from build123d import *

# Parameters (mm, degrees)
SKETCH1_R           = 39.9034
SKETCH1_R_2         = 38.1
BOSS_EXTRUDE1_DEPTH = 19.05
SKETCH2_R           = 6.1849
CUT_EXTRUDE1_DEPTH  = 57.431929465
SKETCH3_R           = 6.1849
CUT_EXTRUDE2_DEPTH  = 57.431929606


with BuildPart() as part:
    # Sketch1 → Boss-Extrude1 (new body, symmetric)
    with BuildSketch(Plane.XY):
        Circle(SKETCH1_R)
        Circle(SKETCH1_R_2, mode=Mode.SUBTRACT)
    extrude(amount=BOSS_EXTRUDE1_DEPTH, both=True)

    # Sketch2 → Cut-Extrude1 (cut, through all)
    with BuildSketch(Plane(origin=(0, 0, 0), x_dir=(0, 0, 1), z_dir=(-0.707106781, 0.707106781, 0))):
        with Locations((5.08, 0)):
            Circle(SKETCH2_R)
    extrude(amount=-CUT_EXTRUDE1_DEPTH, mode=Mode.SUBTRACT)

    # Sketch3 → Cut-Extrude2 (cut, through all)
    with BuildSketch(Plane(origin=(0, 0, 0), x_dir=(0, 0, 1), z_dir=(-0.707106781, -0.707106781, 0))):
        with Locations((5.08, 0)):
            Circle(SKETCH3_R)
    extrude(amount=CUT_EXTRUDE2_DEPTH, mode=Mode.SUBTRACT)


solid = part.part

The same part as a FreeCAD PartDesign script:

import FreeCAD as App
import Part
import Sketcher
from FreeCAD import Vector
Q = App.Units.Quantity

doc = App.newDocument("Part")
params = doc.addObject("Spreadsheet::Sheet", "Params")
for row, (alias, value) in enumerate([
    ("sketch1_diameter", "3 in"),
    ("sketch1_diameter2", "3.142 in"),
    ("pad1_length", "1.5 in"),
    ("sketch2_diameter", "0.487 in"),
    ("sketch3_diameter", "0.487 in"),
], start=1):
    params.set(f"A{row}", alias)
    params.set(f"B{row}", "=" + value)
    params.setAlias(f"B{row}", alias)

body = doc.addObject("PartDesign::Body", "Body")

sketch1 = body.newObject("Sketcher::SketchObject", "Sketch")
sketch1.AttachmentSupport = (doc.getObject("XY_Plane"), [""])
sketch1.MapMode = "FlatFace"
sketch1.addGeometry([
    Part.Circle(Vector(0, 0, 0), Vector(0, 0, 1), 40),
    Part.Circle(Vector(0, 0, 0), Vector(0, 0, 1), 38),
], False)
sketch1.addConstraint([
    Sketcher.Constraint("Coincident", 0, 3, -1, 1),
    Sketcher.Constraint("Coincident", 1, 3, -1, 1),
    Sketcher.Constraint("Diameter", 1, Q("3 in")),
    Sketcher.Constraint("Diameter", 0, Q("3.142 in")),
])
sketch1.setExpression("Constraints[2]", "Params.sketch1_diameter")
sketch1.setExpression("Constraints[3]", "Params.sketch1_diameter2")
pad1 = body.newObject("PartDesign::Pad", "Pad")
pad1.Profile = sketch1
pad1.setExpression("Length", "Params.pad1_length")
pad1.Midplane = True

sketch2 = body.newObject("Sketcher::SketchObject", "Sketch001")
sketch2.Placement = App.Placement(Vector(0, 0, 0), App.Rotation(Vector(0, 0, 1), Vector(0.707106781, 0.707106781, 0), Vector(-0.707106781, 0.707106781, 0), "ZXY"))
sketch2.addGeometry(Part.Circle(Vector(5, 0, 0), Vector(0, 0, 1), 6), False)
sketch2.addConstraint([
    Sketcher.Constraint("PointOnObject", 0, 3, -1),
    Sketcher.Constraint("Diameter", 0, Q("0.487 in")),
    Sketcher.Constraint("DistanceX", -1, 1, 0, 3, Q("0.2 in")),
])
sketch2.setExpression("Constraints[1]", "Params.sketch2_diameter")
pocket1 = body.newObject("PartDesign::Pocket", "Pocket")
pocket1.Profile = sketch2
pocket1.Type = "ThroughAll"

sketch3 = body.newObject("Sketcher::SketchObject", "Sketch002")
sketch3.Placement = App.Placement(Vector(0, 0, 0), App.Rotation(Vector(0, 0, 1), Vector(-0.707106781, 0.707106781, 0), Vector(-0.707106781, -0.707106781, 0), "ZXY"))
sketch3.addGeometry(Part.Circle(Vector(5, 0, 0), Vector(0, 0, 1), 6), False)
sketch3.addConstraint([
    Sketcher.Constraint("PointOnObject", 0, 3, -1),
    Sketcher.Constraint("Diameter", 0, Q("0.487 in")),
    Sketcher.Constraint("DistanceX", -1, 1, 0, 3, Q("0.2 in")),
])
sketch3.setExpression("Constraints[1]", "Params.sketch3_diameter")
pocket2 = body.newObject("PartDesign::Pocket", "Pocket001")
pocket2.Profile = sketch3
pocket2.Type = "ThroughAll"
pocket2.Reversed = True

doc.recompute()
